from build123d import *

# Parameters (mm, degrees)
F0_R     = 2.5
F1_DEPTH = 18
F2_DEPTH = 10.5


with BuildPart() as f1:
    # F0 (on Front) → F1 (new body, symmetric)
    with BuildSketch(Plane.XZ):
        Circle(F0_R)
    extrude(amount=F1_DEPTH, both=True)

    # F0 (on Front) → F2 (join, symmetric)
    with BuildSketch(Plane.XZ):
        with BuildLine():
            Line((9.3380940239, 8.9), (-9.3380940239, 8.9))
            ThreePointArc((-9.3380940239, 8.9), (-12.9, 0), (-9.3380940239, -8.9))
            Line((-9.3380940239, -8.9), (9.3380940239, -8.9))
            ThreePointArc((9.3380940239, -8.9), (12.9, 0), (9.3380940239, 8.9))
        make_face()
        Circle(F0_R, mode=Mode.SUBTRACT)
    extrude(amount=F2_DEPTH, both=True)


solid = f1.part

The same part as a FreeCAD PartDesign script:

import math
import FreeCAD as App
import Part
import Sketcher

V = App.Vector
Q = App.Units.Quantity

doc = App.newDocument("Part")
body = doc.addObject("PartDesign::Body", "Body")

# Sketch on XZ plane
sketch1 = body.newObject("Sketcher::SketchObject", "Sketch")
sketch1.AttachmentSupport = (doc.getObject("XZ_Plane"), [""])
sketch1.MapMode = "FlatFace"
sketch1.addGeometry(Part.Circle(V(0, 0, 0), V(0, 0, 1), 2.5), False)
sketch1.addConstraint([
    Sketcher.Constraint("Coincident", 0, 3, -1, 1),
    Sketcher.Constraint("Diameter", 0, Q("5 mm")),
])
pad1 = body.newObject("PartDesign::Pad", "Pad")
pad1.Profile = sketch1
pad1.Length = 36
pad1.Midplane = True

# Sketch on XZ plane
sketch2 = body.newObject("Sketcher::SketchObject", "Sketch001")
sketch2.AttachmentSupport = (doc.getObject("XZ_Plane"), [""])
sketch2.MapMode = "FlatFace"
sketch2.addGeometry([
    Part.LineSegment(V(9.338094, 8.9, 0), V(-9.338094, 8.9, 0)),  # 0
    Part.ArcOfCircle(Part.Circle(V(0, 0, 0), V(0, 0, 1), 12.9), math.radians(136.376027), math.radians(223.623973)),  # 1
    Part.LineSegment(V(-9.338094, -8.9, 0), V(9.338094, -8.9, 0)),  # 2
    Part.ArcOfCircle(Part.Circle(V(0, 0, 0), V(0, 0, 1), 12.9), math.radians(-43.623973), math.radians(43.623973)),  # 3
    Part.Circle(V(0, 0, 0), V(0, 0, 1), 2.5),  # 4
], False)
sketch2.addConstraint([
    Sketcher.Constraint("Coincident", 0, 2, 1, 1),
    Sketcher.Constraint("Coincident", 1, 2, 2, 1),
    Sketcher.Constraint("Coincident", 2, 2, 3, 1),
    Sketcher.Constraint("Coincident", 3, 2, 0, 1),
    Sketcher.Constraint("Horizontal", 0),
    Sketcher.Constraint("Horizontal", 2),
    Sketcher.Constraint("Coincident", 1, 3, -1, 1),
    Sketcher.Constraint("Coincident", 3, 3, -1, 1),
    Sketcher.Constraint("Coincident", 4, 3, -1, 1),
    Sketcher.Constraint("Equal", 1, 3),
    Sketcher.Constraint("Vertical", 0, 2, 1, 2),
    Sketcher.Constraint("Diameter", 4, Q("5 mm")),
    Sketcher.Constraint("Radius", 1, Q("12.9 mm")),
    Sketcher.Constraint("DistanceY", -1, 1, 0, 2, Q("8.9 mm")),
])
pad2 = body.newObject("PartDesign::Pad", "Pad001")
pad2.Profile = sketch2
pad2.Length = 21
pad2.Midplane = True

doc.recompute()
